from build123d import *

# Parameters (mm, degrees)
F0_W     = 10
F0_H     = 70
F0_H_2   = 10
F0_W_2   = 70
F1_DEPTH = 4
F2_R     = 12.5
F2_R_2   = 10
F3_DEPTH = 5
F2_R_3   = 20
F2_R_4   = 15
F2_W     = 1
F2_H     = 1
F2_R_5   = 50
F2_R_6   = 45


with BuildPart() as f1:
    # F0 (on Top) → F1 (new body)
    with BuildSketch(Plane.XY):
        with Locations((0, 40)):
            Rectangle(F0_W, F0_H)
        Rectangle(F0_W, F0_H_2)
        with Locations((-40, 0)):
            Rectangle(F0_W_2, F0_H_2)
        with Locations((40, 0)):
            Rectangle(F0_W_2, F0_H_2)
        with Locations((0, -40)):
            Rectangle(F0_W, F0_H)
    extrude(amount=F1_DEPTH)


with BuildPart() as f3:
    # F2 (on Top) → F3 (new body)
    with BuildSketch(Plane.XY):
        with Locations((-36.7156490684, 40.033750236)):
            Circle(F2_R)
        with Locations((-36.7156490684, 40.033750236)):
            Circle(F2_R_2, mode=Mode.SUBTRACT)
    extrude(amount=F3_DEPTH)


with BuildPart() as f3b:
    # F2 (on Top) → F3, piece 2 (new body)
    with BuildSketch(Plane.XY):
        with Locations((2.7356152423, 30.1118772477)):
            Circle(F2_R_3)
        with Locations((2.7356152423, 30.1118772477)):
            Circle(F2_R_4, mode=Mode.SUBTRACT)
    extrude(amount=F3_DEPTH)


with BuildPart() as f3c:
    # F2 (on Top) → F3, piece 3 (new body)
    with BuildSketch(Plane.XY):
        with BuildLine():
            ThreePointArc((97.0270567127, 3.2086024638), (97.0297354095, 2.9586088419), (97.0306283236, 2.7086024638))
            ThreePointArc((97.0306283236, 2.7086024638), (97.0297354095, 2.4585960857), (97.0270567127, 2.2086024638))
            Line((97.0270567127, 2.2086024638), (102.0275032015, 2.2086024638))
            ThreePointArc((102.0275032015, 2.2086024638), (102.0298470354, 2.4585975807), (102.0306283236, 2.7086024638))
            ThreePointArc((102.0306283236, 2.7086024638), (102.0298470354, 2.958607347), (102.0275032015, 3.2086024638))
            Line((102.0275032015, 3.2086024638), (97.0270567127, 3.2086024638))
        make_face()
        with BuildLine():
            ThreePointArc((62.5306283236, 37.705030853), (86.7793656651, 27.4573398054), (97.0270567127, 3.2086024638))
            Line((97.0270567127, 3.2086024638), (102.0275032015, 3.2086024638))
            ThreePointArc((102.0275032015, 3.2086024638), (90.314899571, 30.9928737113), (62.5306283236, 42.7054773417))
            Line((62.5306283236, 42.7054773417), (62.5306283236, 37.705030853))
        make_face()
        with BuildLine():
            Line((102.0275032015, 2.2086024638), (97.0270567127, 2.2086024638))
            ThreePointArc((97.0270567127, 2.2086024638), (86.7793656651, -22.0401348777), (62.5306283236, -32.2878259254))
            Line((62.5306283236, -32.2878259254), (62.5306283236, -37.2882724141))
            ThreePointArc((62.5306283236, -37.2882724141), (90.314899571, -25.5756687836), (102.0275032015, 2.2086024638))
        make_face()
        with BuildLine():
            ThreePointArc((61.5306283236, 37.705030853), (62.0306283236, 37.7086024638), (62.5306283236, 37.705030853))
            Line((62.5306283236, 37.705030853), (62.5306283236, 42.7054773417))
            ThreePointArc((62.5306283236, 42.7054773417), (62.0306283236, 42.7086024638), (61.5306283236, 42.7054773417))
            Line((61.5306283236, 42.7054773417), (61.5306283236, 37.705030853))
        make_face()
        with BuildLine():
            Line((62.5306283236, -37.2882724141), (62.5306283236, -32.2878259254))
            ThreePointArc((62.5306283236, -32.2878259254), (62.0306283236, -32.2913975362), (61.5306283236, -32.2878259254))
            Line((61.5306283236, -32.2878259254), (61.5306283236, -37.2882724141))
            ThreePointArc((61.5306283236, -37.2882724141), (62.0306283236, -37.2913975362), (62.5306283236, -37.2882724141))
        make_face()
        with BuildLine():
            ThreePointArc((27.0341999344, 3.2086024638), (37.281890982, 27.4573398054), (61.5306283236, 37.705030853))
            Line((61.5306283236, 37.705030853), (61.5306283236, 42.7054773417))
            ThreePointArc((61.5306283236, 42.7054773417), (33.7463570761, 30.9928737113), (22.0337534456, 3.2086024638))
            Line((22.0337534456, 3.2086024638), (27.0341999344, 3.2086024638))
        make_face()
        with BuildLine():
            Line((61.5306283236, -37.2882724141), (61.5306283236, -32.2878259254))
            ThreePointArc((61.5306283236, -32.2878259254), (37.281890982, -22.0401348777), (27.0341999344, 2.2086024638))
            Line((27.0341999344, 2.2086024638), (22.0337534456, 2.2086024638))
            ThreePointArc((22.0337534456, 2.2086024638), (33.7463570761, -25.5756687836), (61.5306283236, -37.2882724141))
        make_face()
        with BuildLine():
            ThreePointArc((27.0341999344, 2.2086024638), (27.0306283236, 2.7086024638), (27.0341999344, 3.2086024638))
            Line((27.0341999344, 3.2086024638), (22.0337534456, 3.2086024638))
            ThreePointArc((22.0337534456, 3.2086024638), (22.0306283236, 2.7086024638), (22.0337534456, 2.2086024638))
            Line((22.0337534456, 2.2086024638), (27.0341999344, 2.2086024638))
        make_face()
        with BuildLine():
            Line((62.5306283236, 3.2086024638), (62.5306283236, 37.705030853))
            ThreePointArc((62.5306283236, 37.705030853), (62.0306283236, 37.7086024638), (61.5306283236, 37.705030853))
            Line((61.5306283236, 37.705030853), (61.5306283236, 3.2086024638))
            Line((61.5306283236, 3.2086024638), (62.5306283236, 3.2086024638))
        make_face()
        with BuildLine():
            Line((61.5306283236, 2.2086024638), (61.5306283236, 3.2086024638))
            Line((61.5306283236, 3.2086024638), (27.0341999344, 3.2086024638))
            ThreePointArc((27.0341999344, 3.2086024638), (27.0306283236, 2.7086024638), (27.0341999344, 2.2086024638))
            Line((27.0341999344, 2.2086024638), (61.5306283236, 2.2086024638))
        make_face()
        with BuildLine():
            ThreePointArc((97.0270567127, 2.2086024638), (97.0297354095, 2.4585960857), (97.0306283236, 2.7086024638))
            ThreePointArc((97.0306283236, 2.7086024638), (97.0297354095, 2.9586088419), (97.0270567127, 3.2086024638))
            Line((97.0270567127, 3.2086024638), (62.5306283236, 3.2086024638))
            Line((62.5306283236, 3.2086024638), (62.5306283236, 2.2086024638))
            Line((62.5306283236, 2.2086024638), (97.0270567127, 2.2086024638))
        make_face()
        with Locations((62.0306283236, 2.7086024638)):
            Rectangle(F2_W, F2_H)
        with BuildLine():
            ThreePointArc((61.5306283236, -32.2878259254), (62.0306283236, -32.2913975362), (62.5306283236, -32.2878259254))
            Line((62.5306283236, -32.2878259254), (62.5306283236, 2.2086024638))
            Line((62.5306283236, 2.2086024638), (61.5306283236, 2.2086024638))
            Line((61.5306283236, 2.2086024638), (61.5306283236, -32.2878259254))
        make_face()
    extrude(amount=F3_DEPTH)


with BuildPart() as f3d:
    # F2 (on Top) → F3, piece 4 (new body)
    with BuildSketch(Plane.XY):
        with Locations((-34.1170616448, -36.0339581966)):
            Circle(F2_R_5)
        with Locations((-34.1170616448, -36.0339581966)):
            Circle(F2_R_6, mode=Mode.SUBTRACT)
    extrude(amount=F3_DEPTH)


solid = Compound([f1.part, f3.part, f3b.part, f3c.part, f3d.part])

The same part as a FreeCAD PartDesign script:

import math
import FreeCAD as App
import Part
import Sketcher


def add_polygon(sketch, points):
    """Adds a closed chain of lines whose ends are joined by coincident constraints."""
    first, n = sketch.GeometryCount, len(points)
    for a, b in zip(points, points[1:] + points[:1]):
        sketch.addGeometry(Part.LineSegment(App.Vector(*a, 0), App.Vector(*b, 0)), False)
    for i in range(n):
        sketch.addConstraint(Sketcher.Constraint("Coincident", first + i, 2, first + (i + 1) % n, 1))

doc = App.newDocument("Part")
params = doc.addObject("Spreadsheet::Sheet", "Params")
for row, (alias, value) in enumerate([
    ("sketch1_width", "70 mm"),
    ("sketch1_width2", "10 mm"),
    ("pad1_length", "4 mm"),
    ("sketch2_diameter", "25 mm"),
    ("sketch2_diameter2", "20 mm"),
    ("pad2_length", "5 mm"),
    ("sketch3_diameter", "40 mm"),
    ("sketch3_diameter2", "30 mm"),
    ("pad3_length", "5 mm"),
    ("sketch4_radius", "40 mm"),
    ("sketch4_radius2", "35 mm"),
    ("pad4_length", "5 mm"),
    ("sketch5_diameter", "100 mm"),
    ("sketch5_diameter2", "90 mm"),
    ("pad5_length", "5 mm"),
], start=1):
    params.set(f"A{row}", alias)
    params.set(f"B{row}", "=" + value)
    params.setAlias(f"B{row}", alias)

body = doc.addObject("PartDesign::Body", "Body")

sketch1 = doc.addObject("Sketcher::SketchObject", "Sketch")
body.addObject(sketch1)
sketch1.AttachmentSupport = (doc.XY_Plane, [""])
sketch1.MapMode = "FlatFace"
add_polygon(sketch1, [(-5, 75), (-5, 5), (-75, 5), (-75, -5), (-5, -5), (-5, -75), (5, -75), (5, -5), (75, -5), (75, 5), (5, 5), (5, 75)])
sketch1.addConstraint(Sketcher.Constraint("Vertical", 0))
sketch1.addConstraint(Sketcher.Constraint("Horizontal", 1))
sketch1.addConstraint(Sketcher.Constraint("Vertical", 2))
sketch1.addConstraint(Sketcher.Constraint("Horizontal", 3))
sketch1.addConstraint(Sketcher.Constraint("Vertical", 4))
sketch1.addConstraint(Sketcher.Constraint("Horizontal", 5))
sketch1.addConstraint(Sketcher.Constraint("Vertical", 6))
sketch1.addConstraint(Sketcher.Constraint("Horizontal", 7))
sketch1.addConstraint(Sketcher.Constraint("Vertical", 8))
sketch1.addConstraint(Sketcher.Constraint("Horizontal", 9))
sketch1.addConstraint(Sketcher.Constraint("Vertical", 10))
sketch1.addConstraint(Sketcher.Constraint("Horizontal", 11))
sketch1.addConstraint(Sketcher.Constraint("Symmetric", 0, 2, 6, 2, -1, 1))
sketch1.addConstraint(Sketcher.Constraint("Symmetric", 2, 2, 8, 2, -1, 1))
sketch1.addConstraint(Sketcher.Constraint("Symmetric", 4, 2, 10, 2, -1, 1))
sketch1.addConstraint(Sketcher.Constraint("Symmetric", 3, 2, 6, 2, -2))
sketch1.addConstraint(Sketcher.Constraint("Equal", 9, 0))
sketch1.addConstraint(Sketcher.Constraint("Equal", 11, 2))
sketch1.addConstraint(Sketcher.Constraint("DistanceX", 1, 2, 1, 1, 70.0))
sketch1.addConstraint(Sketcher.Constraint("DistanceX", 5, 1, 5, 2, 10.0))
sketch1.setExpression("Constraints[30]", "Params.sketch1_width")
sketch1.setExpression("Constraints[31]", "Params.sketch1_width2")
pad1 = doc.addObject("PartDesign::Pad", "Pad")
body.addObject(pad1)
pad1.Profile = sketch1
pad1.setExpression("Length", "Params.pad1_length")
body2 = doc.addObject("PartDesign::Body", "Body001")

sketch2 = doc.addObject("Sketcher::SketchObject", "Sketch001")
body2.addObject(sketch2)
sketch2.AttachmentSupport = (doc.getObject("XY_Plane001"), [""])
sketch2.MapMode = "FlatFace"
sketch2.addGeometry(Part.Circle(App.Vector(-37, 40, 0), App.Vector(0, 0, 1), 12), False)
sketch2.addGeometry(Part.Circle(App.Vector(-37, 40, 0), App.Vector(0, 0, 1), 10), False)
sketch2.addConstraint(Sketcher.Constraint("Coincident", 1, 3, 0, 3))
sketch2.addConstraint(Sketcher.Constraint("Diameter", 0, 25.0))
sketch2.addConstraint(Sketcher.Constraint("Diameter", 1, 20.0))
sketch2.addConstraint(Sketcher.Constraint("DistanceX", 0, 3, -1, 1, 36.715649))
sketch2.addConstraint(Sketcher.Constraint("DistanceY", -1, 1, 0, 3, 40.03375))
sketch2.setExpression("Constraints[1]", "Params.sketch2_diameter")
sketch2.setExpression("Constraints[2]", "Params.sketch2_diameter2")
pad2 = doc.addObject("PartDesign::Pad", "Pad001")
body2.addObject(pad2)
pad2.Profile = sketch2
pad2.setExpression("Length", "Params.pad2_length")
body3 = doc.addObject("PartDesign::Body", "Body002")

sketch3 = doc.addObject("Sketcher::SketchObject", "Sketch002")
body3.addObject(sketch3)
sketch3.AttachmentSupport = (doc.getObject("XY_Plane002"), [""])
sketch3.MapMode = "FlatFace"
sketch3.addGeometry(Part.Circle(App.Vector(3, 30, 0), App.Vector(0, 0, 1), 20), False)
sketch3.addGeometry(Part.Circle(App.Vector(3, 30, 0), App.Vector(0, 0, 1), 15), False)
sketch3.addConstraint(Sketcher.Constraint("Coincident", 1, 3, 0, 3))
sketch3.addConstraint(Sketcher.Constraint("Diameter", 0, 40.0))
sketch3.addConstraint(Sketcher.Constraint("Diameter", 1, 30.0))
sketch3.addConstraint(Sketcher.Constraint("DistanceX", -1, 1, 0, 3, 2.735615))
sketch3.addConstraint(Sketcher.Constraint("DistanceY", -1, 1, 0, 3, 30.111877))
sketch3.setExpression("Constraints[1]", "Params.sketch3_diameter")
sketch3.setExpression("Constraints[2]", "Params.sketch3_diameter2")
pad3 = doc.addObject("PartDesign::Pad", "Pad002")
body3.addObject(pad3)
pad3.Profile = sketch3
pad3.setExpression("Length", "Params.pad3_length")
body4 = doc.addObject("PartDesign::Body", "Body003")

sketch4 = doc.addObject("Sketcher::SketchObject", "Sketch003")
body4.addObject(sketch4)
sketch4.AttachmentSupport = (doc.getObject("XY_Plane003"), [""])
sketch4.MapMode = "FlatFace"
sketch4.addGeometry(Part.ArcOfCircle(Part.Circle(App.Vector(62, 2.7, 0), App.Vector(0, 0, 1), 40), math.radians(-179), math.radians(-91)), False)
sketch4.addGeometry(Part.ArcOfCircle(Part.Circle(App.Vector(62, 2.7, 0), App.Vector(0, 0, 1), 40), math.radians(-90.72), math.radians(-89.28)), False)
sketch4.addGeometry(Part.ArcOfCircle(Part.Circle(App.Vector(62, 2.7, 0), App.Vector(0, 0, 1), 40), math.radians(-89), math.radians(-1)), False)
sketch4.addGeometry(Part.ArcOfCircle(Part.Circle(App.Vector(62, 2.7, 0), App.Vector(0, 0, 1), 40), math.radians(-0.72), math.radians(0)), False)
sketch4.addGeometry(Part.ArcOfCircle(Part.Circle(App.Vector(62, 2.7, 0), App.Vector(0, 0, 1), 40), math.radians(0), math.radians(0.72)), False)
sketch4.addGeometry(Part.ArcOfCircle(Part.Circle(App.Vector(62, 2.7, 0), App.Vector(0, 0, 1), 40), math.radians(1), math.radians(89)), False)
sketch4.addGeometry(Part.ArcOfCircle(Part.Circle(App.Vector(62, 2.7, 0), App.Vector(0, 0, 1), 40), math.radians(89.28), math.radians(90.72)), False)
sketch4.addGeometry(Part.ArcOfCircle(Part.Circle(App.Vector(62, 2.7, 0), App.Vector(0, 0, 1), 40), math.radians(91), math.radians(179)), False)
sketch4.addGeometry(Part.ArcOfCircle(Part.Circle(App.Vector(62, 2.7, 0), App.Vector(0, 0, 1), 40), math.radians(179.28), math.radians(180.72)), False)
sketch4.addGeometry(Part.LineSegment(App.Vector(27, 2.2, 0), App.Vector(61.5, 2.2, 0)), False)
sketch4.addGeometry(Part.LineSegment(App.Vector(61.5, 2.2, 0), App.Vector(61.5, -32.3, 0)), False)
sketch4.addGeometry(Part.ArcOfCircle(Part.Circle(App.Vector(62, 2.7, 0), App.Vector(0, 0, 1), 35), math.radians(-179), math.radians(-91)), False)
sketch4.addGeometry(Part.LineSegment(App.Vector(62.5, 2.2, 0), App.Vector(97, 2.2, 0)), False)
sketch4.addGeometry(Part.ArcOfCircle(Part.Circle(App.Vector(62, 2.7, 0), App.Vector(0, 0, 1), 35), math.radians(-89), math.radians(-1)), False)
sketch4.addGeometry(Part.LineSegment(App.Vector(62.5, -32.3, 0), App.Vector(62.5, 2.2, 0)), False)
sketch4.addGeometry(Part.LineSegment(App.Vector(61.5, 37.7, 0), App.Vector(61.5, 3.2, 0)), False)
sketch4.addGeometry(Part.LineSegment(App.Vector(61.5, 3.2, 0), App.Vector(27, 3.2, 0)), False)
sketch4.addGeometry(Part.ArcOfCircle(Part.Circle(App.Vector(62, 2.7, 0), App.Vector(0, 0, 1), 35), math.radians(91), math.radians(179)), False)
sketch4.addGeometry(Part.LineSegment(App.Vector(97, 3.2, 0), App.Vector(62.5, 3.2, 0)), False)
sketch4.addGeometry(Part.LineSegment(App.Vector(62.5, 3.2, 0), App.Vector(62.5, 37.7, 0)), False)
sketch4.addGeometry(Part.ArcOfCircle(Part.Circle(App.Vector(62, 2.7, 0), App.Vector(0, 0, 1), 35), math.radians(1), math.radians(89)), False)
sketch4.addConstraint(Sketcher.Constraint("Tangent", 0, 2, 1, 1))
sketch4.addConstraint(Sketcher.Constraint("Tangent", 1, 2, 2, 1))
sketch4.addConstraint(Sketcher.Constraint("Tangent", 2, 2, 3, 1))
sketch4.addConstraint(Sketcher.Constraint("Tangent", 3, 2, 4, 1))
sketch4.addConstraint(Sketcher.Constraint("Tangent", 4, 2, 5, 1))
sketch4.addConstraint(Sketcher.Constraint("Tangent", 5, 2, 6, 1))
sketch4.addConstraint(Sketcher.Constraint("Tangent", 6, 2, 7, 1))
sketch4.addConstraint(Sketcher.Constraint("Tangent", 7, 2, 8, 1))
sketch4.addConstraint(Sketcher.Constraint("Tangent", 8, 2, 0, 1))
sketch4.addConstraint(Sketcher.Constraint("Coincident", 9, 2, 10, 1))
sketch4.addConstraint(Sketcher.Constraint("Coincident", 10, 2, 11, 2))
sketch4.addConstraint(Sketcher.Constraint("Coincident", 11, 1, 9, 1))
sketch4.addConstraint(Sketcher.Constraint("Coincident", 12, 2, 13, 2))
sketch4.addConstraint(Sketcher.Constraint("Coincident", 13, 1, 14, 1))
sketch4.addConstraint(Sketcher.Constraint("Coincident", 14, 2, 12, 1))
sketch4.addConstraint(Sketcher.Constraint("Coincident", 15, 2, 16, 1))
sketch4.addConstraint(Sketcher.Constraint("Coincident", 16, 2, 17, 2))
sketch4.addConstraint(Sketcher.Constraint("Coincident", 17, 1, 15, 1))
sketch4.addConstraint(Sketcher.Constraint("Coincident", 18, 2, 19, 1))
sketch4.addConstraint(Sketcher.Constraint("Coincident", 19, 2, 20, 2))
sketch4.addConstraint(Sketcher.Constraint("Coincident", 20, 1, 18, 1))
sketch4.addConstraint(Sketcher.Constraint("Horizontal", 9))
sketch4.addConstraint(Sketcher.Constraint("Vertical", 10))
sketch4.addConstraint(Sketcher.Constraint("Horizontal", 12))
sketch4.addConstraint(Sketcher.Constraint("Vertical", 14))
sketch4.addConstraint(Sketcher.Constraint("Vertical", 15))
sketch4.addConstraint(Sketcher.Constraint("Horizontal", 16))
sketch4.addConstraint(Sketcher.Constraint("Horizontal", 18))
sketch4.addConstraint(Sketcher.Constraint("Vertical", 19))
sketch4.addConstraint(Sketcher.Constraint("Coincident", 2, 3, 0, 3))
sketch4.addConstraint(Sketcher.Constraint("Coincident", 4, 3, 0, 3))
sketch4.addConstraint(Sketcher.Constraint("Coincident", 6, 3, 0, 3))
sketch4.addConstraint(Sketcher.Constraint("Coincident", 11, 3, 0, 3))
sketch4.addConstraint(Sketcher.Constraint("Coincident", 13, 3, 0, 3))
sketch4.addConstraint(Sketcher.Constraint("Coincident", 17, 3, 0, 3))
sketch4.addConstraint(Sketcher.Constraint("Coincident", 20, 3, 0, 3))
sketch4.addConstraint(Sketcher.Constraint("Equal", 11, 13))
sketch4.addConstraint(Sketcher.Constraint("Equal", 13, 17))
sketch4.addConstraint(Sketcher.Constraint("Equal", 17, 20))
sketch4.addConstraint(Sketcher.Constraint("Horizontal", 0, 2, 1, 2))
sketch4.addConstraint(Sketcher.Constraint("Horizontal", 20, 3, 3, 2))
sketch4.addConstraint(Sketcher.Constraint("Horizontal", 5, 2, 6, 2))
sketch4.addConstraint(Sketcher.Constraint("Horizontal", 4, 2, 7, 2))
sketch4.addConstraint(Sketcher.Constraint("Horizontal", 2, 2, 8, 2))
sketch4.addConstraint(Sketcher.Constraint("Horizontal", 8, 2, 9, 2))
sketch4.addConstraint(Sketcher.Constraint("Horizontal", 11, 1, 12, 2))
sketch4.addConstraint(Sketcher.Constraint("Horizontal", 10, 2, 13, 1))
sketch4.addConstraint(Sketcher.Constraint("Horizontal", 7, 2, 15, 2))
sketch4.addConstraint(Sketcher.Constraint("Horizontal", 16, 2, 18, 2))
sketch4.addConstraint(Sketcher.Constraint("Horizontal", 17, 1, 19, 2))
sketch4.addConstraint(Sketcher.Constraint("Vertical", 2, 2, 4, 2))
sketch4.addConstraint(Sketcher.Constraint("Vertical", 1, 2, 5, 2))
sketch4.addConstraint(Sketcher.Constraint("Vertical", 6, 2, 9, 2))
sketch4.addConstraint(Sketcher.Constraint("Vertical", 10, 2, 15, 2))
sketch4.addConstraint(Sketcher.Constraint("Equal", 18, 10))
sketch4.addConstraint(Sketcher.Constraint("Radius", 0, 40.0))
sketch4.addConstraint(Sketcher.Constraint("Radius", 11, 35.0))
sketch4.addConstraint(Sketcher.Constraint("DistanceX", 0, 2, 1, 2, 1.0))
sketch4.addConstraint(Sketcher.Constraint("DistanceX", -1, 1, 11, 1, 27.0342))
sketch4.addConstraint(Sketcher.Constraint("DistanceY", -1, 1, 17, 1, 37.705031))
sketch4.setExpression("Constraints[55]", "Params.sketch4_radius")
sketch4.setExpression("Constraints[56]", "Params.sketch4_radius2")
pad4 = doc.addObject("PartDesign::Pad", "Pad003")
body4.addObject(pad4)
pad4.Profile = sketch4
pad4.setExpression("Length", "Params.pad4_length")
body5 = doc.addObject("PartDesign::Body", "Body004")

sketch5 = doc.addObject("Sketcher::SketchObject", "Sketch004")
body5.addObject(sketch5)
sketch5.AttachmentSupport = (doc.getObject("XY_Plane004"), [""])
sketch5.MapMode = "FlatFace"
sketch5.addGeometry(Part.Circle(App.Vector(-34, -36, 0), App.Vector(0, 0, 1), 50), False)
sketch5.addGeometry(Part.Circle(App.Vector(-34, -36, 0), App.Vector(0, 0, 1), 45), False)
sketch5.addConstraint(Sketcher.Constraint("Coincident", 1, 3, 0, 3))
sketch5.addConstraint(Sketcher.Constraint("Diameter", 0, 100.0))
sketch5.addConstraint(Sketcher.Constraint("Diameter", 1, 90.0))
sketch5.addConstraint(Sketcher.Constraint("DistanceX", 0, 3, -1, 1, 34.117062))
sketch5.addConstraint(Sketcher.Constraint("DistanceY", 0, 3, -1, 1, 36.033958))
sketch5.setExpression("Constraints[1]", "Params.sketch5_diameter")
sketch5.setExpression("Constraints[2]", "Params.sketch5_diameter2")
pad5 = doc.addObject("PartDesign::Pad", "Pad004")
body5.addObject(pad5)
pad5.Profile = sketch5
pad5.setExpression("Length", "Params.pad5_length")

doc.recompute()
